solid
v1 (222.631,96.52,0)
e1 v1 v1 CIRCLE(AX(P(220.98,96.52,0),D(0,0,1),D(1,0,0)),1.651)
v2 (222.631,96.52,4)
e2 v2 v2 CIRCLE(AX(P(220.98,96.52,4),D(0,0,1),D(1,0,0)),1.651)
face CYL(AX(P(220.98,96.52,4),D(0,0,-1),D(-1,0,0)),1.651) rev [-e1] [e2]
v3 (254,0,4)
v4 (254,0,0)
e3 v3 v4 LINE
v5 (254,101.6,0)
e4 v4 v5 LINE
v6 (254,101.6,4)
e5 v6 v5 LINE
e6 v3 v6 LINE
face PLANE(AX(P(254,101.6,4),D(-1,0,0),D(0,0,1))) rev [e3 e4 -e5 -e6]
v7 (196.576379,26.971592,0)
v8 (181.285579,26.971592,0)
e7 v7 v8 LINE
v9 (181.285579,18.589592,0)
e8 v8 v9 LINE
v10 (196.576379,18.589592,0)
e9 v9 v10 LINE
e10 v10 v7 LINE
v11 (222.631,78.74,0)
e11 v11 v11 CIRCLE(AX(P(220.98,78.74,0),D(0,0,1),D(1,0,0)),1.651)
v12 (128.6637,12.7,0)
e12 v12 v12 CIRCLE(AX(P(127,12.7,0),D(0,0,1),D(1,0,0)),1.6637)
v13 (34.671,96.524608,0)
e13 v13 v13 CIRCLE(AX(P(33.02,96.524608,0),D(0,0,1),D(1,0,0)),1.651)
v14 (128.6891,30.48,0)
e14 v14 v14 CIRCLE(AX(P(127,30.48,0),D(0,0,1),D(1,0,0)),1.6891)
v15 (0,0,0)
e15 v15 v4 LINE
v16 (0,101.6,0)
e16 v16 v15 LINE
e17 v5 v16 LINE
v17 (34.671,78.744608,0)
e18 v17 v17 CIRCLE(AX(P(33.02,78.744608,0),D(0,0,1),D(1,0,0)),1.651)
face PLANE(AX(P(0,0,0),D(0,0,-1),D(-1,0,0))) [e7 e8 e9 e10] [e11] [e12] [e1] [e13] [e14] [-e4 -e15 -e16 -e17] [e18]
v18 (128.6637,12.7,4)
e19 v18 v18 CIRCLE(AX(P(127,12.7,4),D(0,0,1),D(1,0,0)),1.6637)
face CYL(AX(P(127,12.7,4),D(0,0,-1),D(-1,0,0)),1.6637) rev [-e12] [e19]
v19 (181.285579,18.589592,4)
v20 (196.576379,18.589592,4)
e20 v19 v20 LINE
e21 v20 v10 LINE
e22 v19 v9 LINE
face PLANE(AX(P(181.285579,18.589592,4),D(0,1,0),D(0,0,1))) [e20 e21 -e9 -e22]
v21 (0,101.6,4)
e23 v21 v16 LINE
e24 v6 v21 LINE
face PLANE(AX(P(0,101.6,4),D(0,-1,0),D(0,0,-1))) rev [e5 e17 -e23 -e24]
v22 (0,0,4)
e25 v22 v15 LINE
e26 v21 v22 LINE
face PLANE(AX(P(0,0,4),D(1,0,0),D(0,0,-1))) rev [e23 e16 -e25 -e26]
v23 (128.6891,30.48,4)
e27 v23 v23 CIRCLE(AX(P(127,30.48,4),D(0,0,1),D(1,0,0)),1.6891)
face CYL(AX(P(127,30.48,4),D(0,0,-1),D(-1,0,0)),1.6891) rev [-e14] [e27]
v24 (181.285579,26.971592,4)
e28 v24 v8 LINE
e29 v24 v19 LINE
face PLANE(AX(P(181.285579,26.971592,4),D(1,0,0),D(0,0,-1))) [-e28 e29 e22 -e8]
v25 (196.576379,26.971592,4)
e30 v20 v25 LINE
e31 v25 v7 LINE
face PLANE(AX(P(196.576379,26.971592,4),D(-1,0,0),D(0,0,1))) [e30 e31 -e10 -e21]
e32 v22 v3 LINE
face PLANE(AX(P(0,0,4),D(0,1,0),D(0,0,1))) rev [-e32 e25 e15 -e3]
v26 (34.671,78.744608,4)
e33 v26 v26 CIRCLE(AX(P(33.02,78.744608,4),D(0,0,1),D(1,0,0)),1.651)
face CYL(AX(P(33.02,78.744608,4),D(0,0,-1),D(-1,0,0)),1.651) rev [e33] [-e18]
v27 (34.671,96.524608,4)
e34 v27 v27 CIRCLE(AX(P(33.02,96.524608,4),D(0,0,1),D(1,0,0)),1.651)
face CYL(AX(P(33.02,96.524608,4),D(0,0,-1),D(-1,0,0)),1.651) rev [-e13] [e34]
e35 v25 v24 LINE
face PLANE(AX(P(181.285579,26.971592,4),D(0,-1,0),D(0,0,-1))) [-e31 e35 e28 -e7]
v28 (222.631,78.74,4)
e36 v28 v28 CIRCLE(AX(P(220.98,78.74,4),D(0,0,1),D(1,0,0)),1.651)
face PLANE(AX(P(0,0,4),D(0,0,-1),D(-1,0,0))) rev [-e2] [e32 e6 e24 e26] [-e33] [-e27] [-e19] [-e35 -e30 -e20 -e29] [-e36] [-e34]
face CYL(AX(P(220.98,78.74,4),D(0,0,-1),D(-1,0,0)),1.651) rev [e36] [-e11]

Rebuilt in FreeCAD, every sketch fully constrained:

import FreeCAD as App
import Part
import Sketcher
from FreeCAD import Vector
Q = App.Units.Quantity

doc = App.newDocument("Part")
body = doc.addObject("PartDesign::Body", "Body")

# Sketch on XY plane
sketch1 = body.newObject("Sketcher::SketchObject", "Sketch")
sketch1.AttachmentSupport = (doc.getObject("XY_Plane"), [""])
sketch1.MapMode = "FlatFace"
sketch1.addGeometry([
    Part.LineSegment(Vector(0, 101.6, 0), Vector(0, 0, 0)),  # 0
    Part.LineSegment(Vector(0, 0, 0), Vector(254, 0, 0)),  # 1
    Part.LineSegment(Vector(254, 0, 0), Vector(254, 101.6, 0)),  # 2
    Part.LineSegment(Vector(254, 101.6, 0), Vector(0, 101.6, 0)),  # 3
    Part.Circle(Vector(127, 12.7, 0), Vector(0, 0, 1), 1.7),  # 4
    Part.Circle(Vector(127, 30.5, 0), Vector(0, 0, 1), 1.7),  # 5
    Part.LineSegment(Vector(196.6, 18.6, 0), Vector(181.3, 18.6, 0)),  # 6
    Part.LineSegment(Vector(181.3, 18.6, 0), Vector(181.3, 27, 0)),  # 7
    Part.LineSegment(Vector(181.3, 27, 0), Vector(196.6, 27, 0)),  # 8
    Part.LineSegment(Vector(196.6, 27, 0), Vector(196.6, 18.6, 0)),  # 9
    Part.Circle(Vector(33, 78.7, 0), Vector(0, 0, 1), 1.7),  # 10
    Part.Circle(Vector(33, 96.5, 0), Vector(0, 0, 1), 1.7),  # 11
    Part.Circle(Vector(221, 78.7, 0), Vector(0, 0, 1), 1.7),  # 12
    Part.Circle(Vector(221, 96.5, 0), Vector(0, 0, 1), 1.7),  # 13
], False)
sketch1.addConstraint([
    Sketcher.Constraint("Coincident", 0, 2, 1, 1),
    Sketcher.Constraint("Coincident", 1, 2, 2, 1),
    Sketcher.Constraint("Coincident", 2, 2, 3, 1),
    Sketcher.Constraint("Coincident", 3, 2, 0, 1),
    Sketcher.Constraint("Coincident", 6, 2, 7, 1),
    Sketcher.Constraint("Coincident", 7, 2, 8, 1),
    Sketcher.Constraint("Coincident", 8, 2, 9, 1),
    Sketcher.Constraint("Coincident", 9, 2, 6, 1),
    Sketcher.Constraint("Vertical", 0),
    Sketcher.Constraint("Horizontal", 1),
    Sketcher.Constraint("Vertical", 2),
    Sketcher.Constraint("Horizontal", 3),
    Sketcher.Constraint("Horizontal", 6),
    Sketcher.Constraint("Vertical", 7),
    Sketcher.Constraint("Horizontal", 8),
    Sketcher.Constraint("Vertical", 9),
    Sketcher.Constraint("Coincident", 0, 2, -1, 1),
    Sketcher.Constraint("Equal", 10, 11),
    Sketcher.Constraint("Equal", 11, 12),
    Sketcher.Constraint("Equal", 12, 13),
    Sketcher.Constraint("Vertical", 4, 3, 5, 3),
    Sketcher.Constraint("Vertical", 10, 3, 11, 3),
    Sketcher.Constraint("Vertical", 12, 3, 13, 3),
    Sketcher.Constraint("Diameter", 10, Q("0.13 in")),
    Sketcher.Constraint("DistanceX", 1, 1, 1, 2, Q("10 in")),
    Sketcher.Constraint("DistanceY", 0, 2, 0, 1, Q("4 in")),
    Sketcher.Constraint("Diameter", 4, Q("0.131 in")),
    Sketcher.Constraint("Diameter", 5, Q("0.133 in")),
    Sketcher.Constraint("DistanceX", -1, 1, 4, 3, Q("5 in")),
    Sketcher.Constraint("DistanceY", 7, 1, 7, 2, Q("0.33 in")),
    Sketcher.Constraint("DistanceY", -1, 1, 4, 3, Q("0.5 in")),
    Sketcher.Constraint("DistanceY", -1, 1, 5, 3, Q("1.2 in")),
    Sketcher.Constraint("DistanceX", -1, 1, 10, 3, Q("1.3 in")),
    Sketcher.Constraint("DistanceX", -1, 1, 12, 3, Q("8.7 in")),
    Sketcher.Constraint("DistanceY", -1, 1, 12, 3, Q("3.1 in")),
    Sketcher.Constraint("DistanceY", -1, 1, 13, 3, Q("3.8 in")),
    Sketcher.Constraint("DistanceY", 10, 3, 11, 3, Q("0.7 in")),
    Sketcher.Constraint("DistanceX", 6, 2, 6, 1, Q("0.602 in")),
    Sketcher.Constraint("DistanceX", -1, 1, 6, 2, 181.285579),
    Sketcher.Constraint("DistanceY", -1, 1, 6, 2, 18.589592),
    Sketcher.Constraint("DistanceY", -1, 1, 10, 3, 78.744608),
])
pad1 = body.newObject("PartDesign::Pad", "Pad")
pad1.Profile = sketch1
pad1.Length = 4

doc.recompute()
